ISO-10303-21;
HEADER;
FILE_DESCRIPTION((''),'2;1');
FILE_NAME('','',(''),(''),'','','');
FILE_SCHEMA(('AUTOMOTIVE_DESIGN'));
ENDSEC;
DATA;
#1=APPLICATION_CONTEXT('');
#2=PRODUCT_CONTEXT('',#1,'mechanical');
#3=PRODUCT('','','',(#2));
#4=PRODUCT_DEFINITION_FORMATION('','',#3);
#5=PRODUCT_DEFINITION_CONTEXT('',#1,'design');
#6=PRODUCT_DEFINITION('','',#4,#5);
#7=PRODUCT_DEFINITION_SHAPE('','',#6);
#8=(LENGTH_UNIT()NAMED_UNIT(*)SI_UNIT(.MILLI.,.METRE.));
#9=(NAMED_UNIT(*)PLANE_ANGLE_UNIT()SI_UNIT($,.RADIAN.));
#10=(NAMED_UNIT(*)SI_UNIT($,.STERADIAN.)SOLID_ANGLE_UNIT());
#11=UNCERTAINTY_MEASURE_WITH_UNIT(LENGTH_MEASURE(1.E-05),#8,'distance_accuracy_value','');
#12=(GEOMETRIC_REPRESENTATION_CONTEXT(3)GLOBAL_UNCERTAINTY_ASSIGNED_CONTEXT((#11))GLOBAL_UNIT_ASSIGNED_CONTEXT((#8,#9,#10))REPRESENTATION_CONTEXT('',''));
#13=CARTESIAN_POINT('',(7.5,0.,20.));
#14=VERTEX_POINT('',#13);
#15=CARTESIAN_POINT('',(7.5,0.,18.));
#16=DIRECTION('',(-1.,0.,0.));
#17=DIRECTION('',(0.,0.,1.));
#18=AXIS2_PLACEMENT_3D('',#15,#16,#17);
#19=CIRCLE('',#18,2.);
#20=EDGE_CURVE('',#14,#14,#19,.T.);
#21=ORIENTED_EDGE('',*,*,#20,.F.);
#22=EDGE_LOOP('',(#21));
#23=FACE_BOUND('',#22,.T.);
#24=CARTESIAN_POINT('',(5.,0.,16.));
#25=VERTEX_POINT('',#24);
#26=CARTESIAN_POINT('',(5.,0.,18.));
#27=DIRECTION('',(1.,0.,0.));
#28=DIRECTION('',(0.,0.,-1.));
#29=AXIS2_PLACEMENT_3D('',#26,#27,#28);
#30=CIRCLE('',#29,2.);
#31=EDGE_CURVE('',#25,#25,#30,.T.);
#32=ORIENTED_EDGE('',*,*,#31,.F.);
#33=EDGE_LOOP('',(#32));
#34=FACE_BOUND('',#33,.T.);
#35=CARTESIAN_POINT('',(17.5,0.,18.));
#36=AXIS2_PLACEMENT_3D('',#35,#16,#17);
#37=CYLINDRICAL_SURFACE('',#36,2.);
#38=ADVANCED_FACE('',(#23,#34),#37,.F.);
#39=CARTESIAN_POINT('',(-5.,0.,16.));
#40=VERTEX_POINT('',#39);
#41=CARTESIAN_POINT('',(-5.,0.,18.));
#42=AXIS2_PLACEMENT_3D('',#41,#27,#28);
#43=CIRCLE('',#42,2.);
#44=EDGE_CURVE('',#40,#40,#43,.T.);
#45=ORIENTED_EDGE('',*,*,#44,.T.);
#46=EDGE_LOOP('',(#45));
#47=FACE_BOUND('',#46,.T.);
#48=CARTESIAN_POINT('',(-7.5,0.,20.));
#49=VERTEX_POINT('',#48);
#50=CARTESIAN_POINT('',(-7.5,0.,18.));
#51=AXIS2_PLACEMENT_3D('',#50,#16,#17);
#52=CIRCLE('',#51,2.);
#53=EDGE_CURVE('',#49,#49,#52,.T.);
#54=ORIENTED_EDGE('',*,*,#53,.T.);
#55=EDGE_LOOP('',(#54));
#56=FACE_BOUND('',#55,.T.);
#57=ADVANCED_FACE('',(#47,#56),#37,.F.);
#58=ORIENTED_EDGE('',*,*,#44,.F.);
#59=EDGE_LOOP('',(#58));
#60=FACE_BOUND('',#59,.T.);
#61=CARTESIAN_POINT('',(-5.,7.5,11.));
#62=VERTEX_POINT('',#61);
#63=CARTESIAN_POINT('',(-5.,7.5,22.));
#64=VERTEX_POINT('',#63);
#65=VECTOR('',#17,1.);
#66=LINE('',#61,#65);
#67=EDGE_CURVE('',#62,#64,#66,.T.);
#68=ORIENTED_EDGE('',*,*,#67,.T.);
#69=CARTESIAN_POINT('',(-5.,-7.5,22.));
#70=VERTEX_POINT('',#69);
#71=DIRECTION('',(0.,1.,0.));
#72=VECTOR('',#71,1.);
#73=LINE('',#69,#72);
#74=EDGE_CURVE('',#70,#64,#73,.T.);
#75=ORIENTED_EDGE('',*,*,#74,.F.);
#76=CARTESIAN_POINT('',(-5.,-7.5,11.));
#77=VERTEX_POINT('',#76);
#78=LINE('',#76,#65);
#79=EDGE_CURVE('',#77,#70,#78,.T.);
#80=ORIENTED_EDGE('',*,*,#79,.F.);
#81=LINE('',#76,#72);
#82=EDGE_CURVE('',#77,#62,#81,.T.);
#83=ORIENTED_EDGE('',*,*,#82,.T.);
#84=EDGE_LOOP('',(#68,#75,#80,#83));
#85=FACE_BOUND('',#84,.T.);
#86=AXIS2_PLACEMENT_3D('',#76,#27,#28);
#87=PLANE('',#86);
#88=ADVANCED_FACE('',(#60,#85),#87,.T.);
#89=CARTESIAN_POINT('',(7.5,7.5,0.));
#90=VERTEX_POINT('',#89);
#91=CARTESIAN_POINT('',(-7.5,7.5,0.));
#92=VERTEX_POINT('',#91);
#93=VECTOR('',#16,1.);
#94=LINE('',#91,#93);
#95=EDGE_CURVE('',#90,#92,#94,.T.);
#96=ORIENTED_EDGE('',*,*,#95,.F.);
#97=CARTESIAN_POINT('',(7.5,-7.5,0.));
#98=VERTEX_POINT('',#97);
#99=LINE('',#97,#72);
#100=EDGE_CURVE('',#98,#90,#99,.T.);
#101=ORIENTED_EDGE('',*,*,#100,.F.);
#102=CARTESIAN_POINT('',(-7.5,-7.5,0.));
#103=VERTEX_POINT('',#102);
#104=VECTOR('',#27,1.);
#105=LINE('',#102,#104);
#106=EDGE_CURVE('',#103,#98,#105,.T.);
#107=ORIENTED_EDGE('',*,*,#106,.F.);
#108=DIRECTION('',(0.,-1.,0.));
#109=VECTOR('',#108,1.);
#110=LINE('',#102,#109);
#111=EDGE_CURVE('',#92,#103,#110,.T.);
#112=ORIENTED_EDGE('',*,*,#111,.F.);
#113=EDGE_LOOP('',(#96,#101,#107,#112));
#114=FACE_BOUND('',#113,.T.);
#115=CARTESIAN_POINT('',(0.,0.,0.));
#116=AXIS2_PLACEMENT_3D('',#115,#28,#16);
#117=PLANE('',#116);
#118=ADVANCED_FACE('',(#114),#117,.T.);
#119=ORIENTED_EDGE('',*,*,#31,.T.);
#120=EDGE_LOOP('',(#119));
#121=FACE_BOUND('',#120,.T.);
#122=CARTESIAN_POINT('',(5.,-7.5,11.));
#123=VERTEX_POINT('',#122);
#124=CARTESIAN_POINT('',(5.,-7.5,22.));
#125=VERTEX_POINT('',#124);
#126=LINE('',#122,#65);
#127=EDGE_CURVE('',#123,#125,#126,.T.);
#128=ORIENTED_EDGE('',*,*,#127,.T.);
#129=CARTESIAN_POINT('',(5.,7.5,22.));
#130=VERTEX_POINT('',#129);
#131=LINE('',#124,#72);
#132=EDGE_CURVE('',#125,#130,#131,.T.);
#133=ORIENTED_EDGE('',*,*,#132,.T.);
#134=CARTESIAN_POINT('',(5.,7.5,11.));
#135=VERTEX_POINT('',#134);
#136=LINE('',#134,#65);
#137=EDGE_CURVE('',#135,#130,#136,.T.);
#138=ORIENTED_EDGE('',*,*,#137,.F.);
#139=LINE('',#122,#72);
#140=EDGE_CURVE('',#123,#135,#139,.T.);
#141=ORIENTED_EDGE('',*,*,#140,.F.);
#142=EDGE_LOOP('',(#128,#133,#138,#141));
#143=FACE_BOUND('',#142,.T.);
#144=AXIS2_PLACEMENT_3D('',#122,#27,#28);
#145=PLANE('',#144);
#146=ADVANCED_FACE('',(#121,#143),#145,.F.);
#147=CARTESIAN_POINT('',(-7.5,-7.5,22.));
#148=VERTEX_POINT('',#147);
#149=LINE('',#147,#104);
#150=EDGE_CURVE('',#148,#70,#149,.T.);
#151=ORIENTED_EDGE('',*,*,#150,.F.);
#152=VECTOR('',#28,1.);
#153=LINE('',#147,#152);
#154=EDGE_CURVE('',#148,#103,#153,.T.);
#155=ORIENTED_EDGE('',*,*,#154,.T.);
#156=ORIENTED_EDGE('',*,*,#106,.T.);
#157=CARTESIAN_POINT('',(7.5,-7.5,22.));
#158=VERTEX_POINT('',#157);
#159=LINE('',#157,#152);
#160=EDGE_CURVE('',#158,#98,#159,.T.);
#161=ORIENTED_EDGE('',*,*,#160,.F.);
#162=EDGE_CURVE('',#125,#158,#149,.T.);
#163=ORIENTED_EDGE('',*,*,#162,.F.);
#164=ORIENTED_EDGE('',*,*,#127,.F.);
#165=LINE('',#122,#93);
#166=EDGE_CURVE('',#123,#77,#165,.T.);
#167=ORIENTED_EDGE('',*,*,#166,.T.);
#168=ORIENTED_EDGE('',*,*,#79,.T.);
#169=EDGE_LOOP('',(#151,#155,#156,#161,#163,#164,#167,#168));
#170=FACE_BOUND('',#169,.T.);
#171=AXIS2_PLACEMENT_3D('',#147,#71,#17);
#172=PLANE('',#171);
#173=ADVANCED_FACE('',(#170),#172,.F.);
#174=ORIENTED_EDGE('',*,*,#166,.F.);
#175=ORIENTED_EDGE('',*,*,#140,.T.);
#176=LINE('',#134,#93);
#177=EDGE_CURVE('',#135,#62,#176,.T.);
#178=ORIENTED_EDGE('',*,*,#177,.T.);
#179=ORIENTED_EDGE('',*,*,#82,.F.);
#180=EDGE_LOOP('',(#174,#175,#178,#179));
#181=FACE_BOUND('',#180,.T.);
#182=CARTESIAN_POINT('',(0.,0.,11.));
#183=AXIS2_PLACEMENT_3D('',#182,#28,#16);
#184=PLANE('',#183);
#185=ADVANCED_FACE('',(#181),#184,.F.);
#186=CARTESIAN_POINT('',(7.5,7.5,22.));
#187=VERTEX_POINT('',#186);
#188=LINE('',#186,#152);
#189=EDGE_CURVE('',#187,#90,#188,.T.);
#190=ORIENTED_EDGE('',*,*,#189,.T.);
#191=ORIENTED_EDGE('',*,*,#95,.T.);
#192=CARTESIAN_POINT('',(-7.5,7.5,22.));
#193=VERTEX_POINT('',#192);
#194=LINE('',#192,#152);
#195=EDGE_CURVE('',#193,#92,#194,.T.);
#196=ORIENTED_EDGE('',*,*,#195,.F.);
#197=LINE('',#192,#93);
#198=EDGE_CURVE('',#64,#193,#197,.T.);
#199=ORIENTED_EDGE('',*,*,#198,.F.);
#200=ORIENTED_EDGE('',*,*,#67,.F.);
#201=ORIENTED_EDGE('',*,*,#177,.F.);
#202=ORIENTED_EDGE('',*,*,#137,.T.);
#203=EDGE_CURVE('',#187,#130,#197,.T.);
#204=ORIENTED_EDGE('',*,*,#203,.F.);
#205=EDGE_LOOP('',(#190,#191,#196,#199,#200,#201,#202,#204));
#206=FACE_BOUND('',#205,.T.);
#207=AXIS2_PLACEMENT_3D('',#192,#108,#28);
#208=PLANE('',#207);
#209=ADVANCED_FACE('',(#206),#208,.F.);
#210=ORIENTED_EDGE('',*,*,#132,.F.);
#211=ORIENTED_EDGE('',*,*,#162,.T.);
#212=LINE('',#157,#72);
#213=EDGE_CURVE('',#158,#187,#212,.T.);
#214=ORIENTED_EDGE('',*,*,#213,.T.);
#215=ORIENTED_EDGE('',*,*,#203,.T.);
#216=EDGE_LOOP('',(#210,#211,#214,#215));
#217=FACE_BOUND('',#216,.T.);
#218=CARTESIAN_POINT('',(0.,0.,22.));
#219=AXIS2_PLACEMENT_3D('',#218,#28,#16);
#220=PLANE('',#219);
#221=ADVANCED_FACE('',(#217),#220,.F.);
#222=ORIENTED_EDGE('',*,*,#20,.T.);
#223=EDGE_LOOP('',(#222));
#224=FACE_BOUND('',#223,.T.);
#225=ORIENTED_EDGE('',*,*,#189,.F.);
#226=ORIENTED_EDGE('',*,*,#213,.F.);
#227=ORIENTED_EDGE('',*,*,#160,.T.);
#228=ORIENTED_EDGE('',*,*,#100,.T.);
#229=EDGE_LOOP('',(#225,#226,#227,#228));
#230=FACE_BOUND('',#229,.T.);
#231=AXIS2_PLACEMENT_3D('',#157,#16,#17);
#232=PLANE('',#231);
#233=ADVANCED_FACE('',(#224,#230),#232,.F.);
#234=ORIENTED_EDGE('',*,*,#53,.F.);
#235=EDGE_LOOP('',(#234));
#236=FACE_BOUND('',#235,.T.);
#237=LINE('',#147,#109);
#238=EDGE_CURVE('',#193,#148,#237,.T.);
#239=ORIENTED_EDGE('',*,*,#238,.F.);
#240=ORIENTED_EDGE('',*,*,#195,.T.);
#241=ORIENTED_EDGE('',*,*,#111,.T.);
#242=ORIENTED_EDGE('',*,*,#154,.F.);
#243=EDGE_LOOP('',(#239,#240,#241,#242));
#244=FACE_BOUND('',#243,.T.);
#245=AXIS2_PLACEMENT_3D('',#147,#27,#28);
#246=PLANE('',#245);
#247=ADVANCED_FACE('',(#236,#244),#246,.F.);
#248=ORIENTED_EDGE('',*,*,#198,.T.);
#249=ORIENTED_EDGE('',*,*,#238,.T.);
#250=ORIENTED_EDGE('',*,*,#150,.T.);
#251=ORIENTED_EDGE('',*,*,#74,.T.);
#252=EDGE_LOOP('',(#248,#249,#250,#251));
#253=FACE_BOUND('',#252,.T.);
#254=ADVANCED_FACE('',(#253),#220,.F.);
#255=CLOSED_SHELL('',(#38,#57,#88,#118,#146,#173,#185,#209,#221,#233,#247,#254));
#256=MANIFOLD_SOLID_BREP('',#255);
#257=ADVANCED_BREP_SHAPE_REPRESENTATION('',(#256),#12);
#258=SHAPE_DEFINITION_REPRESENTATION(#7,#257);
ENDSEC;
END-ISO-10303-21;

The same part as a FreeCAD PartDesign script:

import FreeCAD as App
import Part
import Sketcher


def add_polygon(sketch, points):
    """Adds a closed chain of lines whose ends are joined by coincident constraints."""
    first, n = sketch.GeometryCount, len(points)
    for a, b in zip(points, points[1:] + points[:1]):
        sketch.addGeometry(Part.LineSegment(App.Vector(*a, 0), App.Vector(*b, 0)), False)
    for i in range(n):
        sketch.addConstraint(Sketcher.Constraint("Coincident", first + i, 2, first + (i + 1) % n, 1))

doc = App.newDocument("Part")
body = doc.addObject("PartDesign::Body", "Body")

sketch1 = body.newObject("Sketcher::SketchObject", "Sketch")
sketch1.AttachmentSupport = (doc.getObject("XY_Plane"), [""])
sketch1.MapMode = "FlatFace"
add_polygon(sketch1, [(-8, 8), (-8, -8), (8, -8), (8, 8)])
sketch1.addConstraint([
    Sketcher.Constraint("Vertical", 0),
    Sketcher.Constraint("Horizontal", 1),
    Sketcher.Constraint("Vertical", 2),
    Sketcher.Constraint("Horizontal", 3),
    Sketcher.Constraint("Symmetric", 0, 2, 2, 2, -1, 1),
    Sketcher.Constraint("Equal", 3, 0),
    Sketcher.Constraint("DistanceX", 1, 1, 1, 2, 15.0),
])
pad1 = body.newObject("PartDesign::Pad", "Pad")
pad1.Profile = sketch1
pad1.Length = 22

sketch2 = body.newObject("Sketcher::SketchObject", "Sketch001")
sketch2.AttachmentSupport = (doc.getObject("XY_Plane"), [""])
sketch2.MapMode = "FlatFace"
sketch2.AttachmentOffset = App.Placement(App.Vector(0, 0, 22), App.Rotation())
add_polygon(sketch2, [(-5, 8), (-5, -8), (5, -8), (5, 8)])
sketch2.addConstraint([
    Sketcher.Constraint("Vertical", 0),
    Sketcher.Constraint("Horizontal", 1),
    Sketcher.Constraint("Vertical", 2),
    Sketcher.Constraint("Horizontal", 3),
    Sketcher.Constraint("Symmetric", 0, 2, 2, 2, -1, 1),
    Sketcher.Constraint("DistanceX", 1, 1, 1, 2, 10.0),
    Sketcher.Constraint("DistanceY", 0, 2, 0, 1, 15.0),
])
pocket1 = body.newObject("PartDesign::Pocket", "Pocket")
pocket1.Profile = sketch2
pocket1.Length = 11

sketch3 = body.newObject("Sketcher::SketchObject", "Sketch002")
sketch3.AttachmentSupport = (doc.getObject("YZ_Plane"), [""])
sketch3.MapMode = "FlatFace"
sketch3.AttachmentOffset = App.Placement(App.Vector(0, 0, -7.5), App.Rotation())
sketch3.addGeometry(Part.Circle(App.Vector(0, 18, 0), App.Vector(0, 0, 1), 2), False)
sketch3.addConstraint([
    Sketcher.Constraint("PointOnObject", 0, 3, -2),
    Sketcher.Constraint("Diameter", 0, 4.0),
    Sketcher.Constraint("DistanceY", -1, 1, 0, 3, 18.0),
])
pocket2 = body.newObject("PartDesign::Pocket", "Pocket001")
pocket2.Profile = sketch3
pocket2.Length = 25
pocket2.Reversed = True

doc.recompute()
